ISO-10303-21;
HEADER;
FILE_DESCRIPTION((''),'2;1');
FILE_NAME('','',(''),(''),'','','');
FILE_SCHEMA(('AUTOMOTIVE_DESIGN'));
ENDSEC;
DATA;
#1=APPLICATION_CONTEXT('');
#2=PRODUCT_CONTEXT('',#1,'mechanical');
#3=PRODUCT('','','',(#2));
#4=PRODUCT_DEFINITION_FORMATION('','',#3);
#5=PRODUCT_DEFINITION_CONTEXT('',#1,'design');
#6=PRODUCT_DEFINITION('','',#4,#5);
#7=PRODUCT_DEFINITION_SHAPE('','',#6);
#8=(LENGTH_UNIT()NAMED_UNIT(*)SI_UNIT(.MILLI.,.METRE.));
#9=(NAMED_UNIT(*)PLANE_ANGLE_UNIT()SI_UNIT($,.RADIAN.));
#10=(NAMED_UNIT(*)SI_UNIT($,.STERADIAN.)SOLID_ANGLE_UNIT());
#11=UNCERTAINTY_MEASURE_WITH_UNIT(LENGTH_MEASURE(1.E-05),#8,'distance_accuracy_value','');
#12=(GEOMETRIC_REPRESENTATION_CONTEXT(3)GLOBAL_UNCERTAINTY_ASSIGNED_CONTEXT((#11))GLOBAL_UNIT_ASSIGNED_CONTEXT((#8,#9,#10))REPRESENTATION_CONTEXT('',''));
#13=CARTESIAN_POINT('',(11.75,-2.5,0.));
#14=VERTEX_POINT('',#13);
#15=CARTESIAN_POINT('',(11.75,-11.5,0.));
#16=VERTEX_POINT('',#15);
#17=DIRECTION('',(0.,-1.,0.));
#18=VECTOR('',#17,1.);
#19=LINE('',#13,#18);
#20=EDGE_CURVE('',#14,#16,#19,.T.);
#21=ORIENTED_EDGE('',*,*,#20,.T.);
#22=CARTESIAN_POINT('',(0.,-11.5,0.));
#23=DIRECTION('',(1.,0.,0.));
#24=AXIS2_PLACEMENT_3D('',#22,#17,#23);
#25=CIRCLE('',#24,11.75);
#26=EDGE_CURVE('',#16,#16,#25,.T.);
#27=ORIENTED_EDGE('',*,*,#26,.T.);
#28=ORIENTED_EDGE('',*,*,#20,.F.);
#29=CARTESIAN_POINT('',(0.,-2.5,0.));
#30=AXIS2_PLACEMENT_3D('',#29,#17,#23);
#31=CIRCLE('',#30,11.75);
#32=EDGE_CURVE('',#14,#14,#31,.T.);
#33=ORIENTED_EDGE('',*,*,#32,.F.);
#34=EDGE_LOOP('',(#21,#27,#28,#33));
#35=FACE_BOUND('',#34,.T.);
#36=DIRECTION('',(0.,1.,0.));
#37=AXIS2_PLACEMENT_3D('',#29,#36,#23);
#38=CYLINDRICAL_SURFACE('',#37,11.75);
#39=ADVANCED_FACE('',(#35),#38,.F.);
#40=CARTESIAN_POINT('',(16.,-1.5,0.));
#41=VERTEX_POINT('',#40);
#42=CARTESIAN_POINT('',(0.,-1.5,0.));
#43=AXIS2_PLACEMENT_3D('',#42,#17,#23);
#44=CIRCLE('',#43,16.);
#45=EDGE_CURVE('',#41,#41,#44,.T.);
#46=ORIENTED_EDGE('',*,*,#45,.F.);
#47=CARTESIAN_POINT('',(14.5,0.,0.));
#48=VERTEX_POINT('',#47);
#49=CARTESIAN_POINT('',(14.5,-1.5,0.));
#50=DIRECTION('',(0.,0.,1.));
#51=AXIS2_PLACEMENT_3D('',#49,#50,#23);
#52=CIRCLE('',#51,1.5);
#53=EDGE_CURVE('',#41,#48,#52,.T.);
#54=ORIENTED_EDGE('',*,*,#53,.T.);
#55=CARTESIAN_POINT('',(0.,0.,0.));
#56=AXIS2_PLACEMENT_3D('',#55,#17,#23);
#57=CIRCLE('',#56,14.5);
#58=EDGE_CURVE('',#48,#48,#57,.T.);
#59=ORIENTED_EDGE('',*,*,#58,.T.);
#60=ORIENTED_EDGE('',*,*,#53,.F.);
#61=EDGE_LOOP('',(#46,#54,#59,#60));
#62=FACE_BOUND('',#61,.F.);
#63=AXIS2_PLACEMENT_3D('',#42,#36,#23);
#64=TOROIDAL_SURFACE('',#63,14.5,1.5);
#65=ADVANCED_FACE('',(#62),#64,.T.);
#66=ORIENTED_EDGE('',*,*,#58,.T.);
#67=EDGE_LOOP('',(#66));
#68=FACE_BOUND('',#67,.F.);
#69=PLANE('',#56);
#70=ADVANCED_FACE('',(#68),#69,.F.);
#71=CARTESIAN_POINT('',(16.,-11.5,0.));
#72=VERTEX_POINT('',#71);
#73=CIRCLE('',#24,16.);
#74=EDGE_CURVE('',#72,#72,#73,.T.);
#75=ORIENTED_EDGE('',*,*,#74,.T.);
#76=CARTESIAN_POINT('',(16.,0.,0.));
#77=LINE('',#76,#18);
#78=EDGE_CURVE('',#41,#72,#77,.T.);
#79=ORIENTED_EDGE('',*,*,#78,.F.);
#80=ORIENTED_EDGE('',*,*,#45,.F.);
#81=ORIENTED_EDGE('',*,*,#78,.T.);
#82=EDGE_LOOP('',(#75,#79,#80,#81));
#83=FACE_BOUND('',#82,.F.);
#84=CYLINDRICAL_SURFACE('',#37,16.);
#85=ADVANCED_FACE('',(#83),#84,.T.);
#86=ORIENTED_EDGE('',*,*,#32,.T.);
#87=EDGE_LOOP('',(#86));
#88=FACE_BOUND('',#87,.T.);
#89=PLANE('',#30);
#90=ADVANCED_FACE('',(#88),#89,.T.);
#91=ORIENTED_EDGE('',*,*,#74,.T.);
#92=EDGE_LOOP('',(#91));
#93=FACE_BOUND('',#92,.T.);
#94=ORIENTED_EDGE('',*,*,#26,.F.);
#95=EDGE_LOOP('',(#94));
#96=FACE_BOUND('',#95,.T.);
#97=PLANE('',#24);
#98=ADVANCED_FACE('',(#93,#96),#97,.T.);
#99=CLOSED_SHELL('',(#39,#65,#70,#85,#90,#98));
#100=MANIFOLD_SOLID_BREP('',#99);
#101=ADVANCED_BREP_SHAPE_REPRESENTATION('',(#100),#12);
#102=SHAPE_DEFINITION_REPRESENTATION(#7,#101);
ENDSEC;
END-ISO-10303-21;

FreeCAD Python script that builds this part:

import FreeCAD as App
import Part
import Sketcher


def edges_at(feature, points):
    """Names of the edges that pass closest to the given points."""
    edges = feature.Shape.Edges
    near = lambda p: min(range(len(edges)), key=lambda i: edges[i].distToShape(Part.Vertex(*p))[0])
    return sorted({f"Edge{near(p) + 1}" for p in points})

doc = App.newDocument("Part")
body = doc.addObject("PartDesign::Body", "Body")

sketch1 = body.newObject("Sketcher::SketchObject", "Sketch")
sketch1.AttachmentSupport = (doc.getObject("XZ_Plane"), [""])
sketch1.MapMode = "FlatFace"
sketch1.addGeometry(Part.Circle(App.Vector(0, 0, 0), App.Vector(0, 0, 1), 16), False)
sketch1.addConstraint([
    Sketcher.Constraint("Coincident", 0, 3, -1, 1),
    Sketcher.Constraint("Diameter", 0, 32.0),
])
pad1 = body.newObject("PartDesign::Pad", "Pad")
pad1.Profile = sketch1
pad1.Length = 2.5

sketch2 = body.newObject("Sketcher::SketchObject", "Sketch001")
sketch2.AttachmentSupport = (doc.getObject("XZ_Plane"), [""])
sketch2.MapMode = "FlatFace"
sketch2.AttachmentOffset = App.Placement(App.Vector(0, 0, 2.5), App.Rotation())
sketch2.addGeometry([
    Part.Circle(App.Vector(0, 0, 0), App.Vector(0, 0, 1), 16),
    Part.Circle(App.Vector(0, 0, 0), App.Vector(0, 0, 1), 11.75),
], False)
sketch2.addConstraint([
    Sketcher.Constraint("Coincident", 0, 3, -1, 1),
    Sketcher.Constraint("Coincident", 1, 3, -1, 1),
    Sketcher.Constraint("Diameter", 0, 32.0),
    Sketcher.Constraint("Diameter", 1, 23.5),
])
pad2 = body.newObject("PartDesign::Pad", "Pad001")
pad2.Profile = sketch2
pad2.Length = 9
doc.recompute()

fillet = body.newObject("PartDesign::Fillet", "Fillet")
fillet.Base = (pad2, edges_at(pad2, [(-16, 0, 0)]))
fillet.Radius = 1.5

doc.recompute()
